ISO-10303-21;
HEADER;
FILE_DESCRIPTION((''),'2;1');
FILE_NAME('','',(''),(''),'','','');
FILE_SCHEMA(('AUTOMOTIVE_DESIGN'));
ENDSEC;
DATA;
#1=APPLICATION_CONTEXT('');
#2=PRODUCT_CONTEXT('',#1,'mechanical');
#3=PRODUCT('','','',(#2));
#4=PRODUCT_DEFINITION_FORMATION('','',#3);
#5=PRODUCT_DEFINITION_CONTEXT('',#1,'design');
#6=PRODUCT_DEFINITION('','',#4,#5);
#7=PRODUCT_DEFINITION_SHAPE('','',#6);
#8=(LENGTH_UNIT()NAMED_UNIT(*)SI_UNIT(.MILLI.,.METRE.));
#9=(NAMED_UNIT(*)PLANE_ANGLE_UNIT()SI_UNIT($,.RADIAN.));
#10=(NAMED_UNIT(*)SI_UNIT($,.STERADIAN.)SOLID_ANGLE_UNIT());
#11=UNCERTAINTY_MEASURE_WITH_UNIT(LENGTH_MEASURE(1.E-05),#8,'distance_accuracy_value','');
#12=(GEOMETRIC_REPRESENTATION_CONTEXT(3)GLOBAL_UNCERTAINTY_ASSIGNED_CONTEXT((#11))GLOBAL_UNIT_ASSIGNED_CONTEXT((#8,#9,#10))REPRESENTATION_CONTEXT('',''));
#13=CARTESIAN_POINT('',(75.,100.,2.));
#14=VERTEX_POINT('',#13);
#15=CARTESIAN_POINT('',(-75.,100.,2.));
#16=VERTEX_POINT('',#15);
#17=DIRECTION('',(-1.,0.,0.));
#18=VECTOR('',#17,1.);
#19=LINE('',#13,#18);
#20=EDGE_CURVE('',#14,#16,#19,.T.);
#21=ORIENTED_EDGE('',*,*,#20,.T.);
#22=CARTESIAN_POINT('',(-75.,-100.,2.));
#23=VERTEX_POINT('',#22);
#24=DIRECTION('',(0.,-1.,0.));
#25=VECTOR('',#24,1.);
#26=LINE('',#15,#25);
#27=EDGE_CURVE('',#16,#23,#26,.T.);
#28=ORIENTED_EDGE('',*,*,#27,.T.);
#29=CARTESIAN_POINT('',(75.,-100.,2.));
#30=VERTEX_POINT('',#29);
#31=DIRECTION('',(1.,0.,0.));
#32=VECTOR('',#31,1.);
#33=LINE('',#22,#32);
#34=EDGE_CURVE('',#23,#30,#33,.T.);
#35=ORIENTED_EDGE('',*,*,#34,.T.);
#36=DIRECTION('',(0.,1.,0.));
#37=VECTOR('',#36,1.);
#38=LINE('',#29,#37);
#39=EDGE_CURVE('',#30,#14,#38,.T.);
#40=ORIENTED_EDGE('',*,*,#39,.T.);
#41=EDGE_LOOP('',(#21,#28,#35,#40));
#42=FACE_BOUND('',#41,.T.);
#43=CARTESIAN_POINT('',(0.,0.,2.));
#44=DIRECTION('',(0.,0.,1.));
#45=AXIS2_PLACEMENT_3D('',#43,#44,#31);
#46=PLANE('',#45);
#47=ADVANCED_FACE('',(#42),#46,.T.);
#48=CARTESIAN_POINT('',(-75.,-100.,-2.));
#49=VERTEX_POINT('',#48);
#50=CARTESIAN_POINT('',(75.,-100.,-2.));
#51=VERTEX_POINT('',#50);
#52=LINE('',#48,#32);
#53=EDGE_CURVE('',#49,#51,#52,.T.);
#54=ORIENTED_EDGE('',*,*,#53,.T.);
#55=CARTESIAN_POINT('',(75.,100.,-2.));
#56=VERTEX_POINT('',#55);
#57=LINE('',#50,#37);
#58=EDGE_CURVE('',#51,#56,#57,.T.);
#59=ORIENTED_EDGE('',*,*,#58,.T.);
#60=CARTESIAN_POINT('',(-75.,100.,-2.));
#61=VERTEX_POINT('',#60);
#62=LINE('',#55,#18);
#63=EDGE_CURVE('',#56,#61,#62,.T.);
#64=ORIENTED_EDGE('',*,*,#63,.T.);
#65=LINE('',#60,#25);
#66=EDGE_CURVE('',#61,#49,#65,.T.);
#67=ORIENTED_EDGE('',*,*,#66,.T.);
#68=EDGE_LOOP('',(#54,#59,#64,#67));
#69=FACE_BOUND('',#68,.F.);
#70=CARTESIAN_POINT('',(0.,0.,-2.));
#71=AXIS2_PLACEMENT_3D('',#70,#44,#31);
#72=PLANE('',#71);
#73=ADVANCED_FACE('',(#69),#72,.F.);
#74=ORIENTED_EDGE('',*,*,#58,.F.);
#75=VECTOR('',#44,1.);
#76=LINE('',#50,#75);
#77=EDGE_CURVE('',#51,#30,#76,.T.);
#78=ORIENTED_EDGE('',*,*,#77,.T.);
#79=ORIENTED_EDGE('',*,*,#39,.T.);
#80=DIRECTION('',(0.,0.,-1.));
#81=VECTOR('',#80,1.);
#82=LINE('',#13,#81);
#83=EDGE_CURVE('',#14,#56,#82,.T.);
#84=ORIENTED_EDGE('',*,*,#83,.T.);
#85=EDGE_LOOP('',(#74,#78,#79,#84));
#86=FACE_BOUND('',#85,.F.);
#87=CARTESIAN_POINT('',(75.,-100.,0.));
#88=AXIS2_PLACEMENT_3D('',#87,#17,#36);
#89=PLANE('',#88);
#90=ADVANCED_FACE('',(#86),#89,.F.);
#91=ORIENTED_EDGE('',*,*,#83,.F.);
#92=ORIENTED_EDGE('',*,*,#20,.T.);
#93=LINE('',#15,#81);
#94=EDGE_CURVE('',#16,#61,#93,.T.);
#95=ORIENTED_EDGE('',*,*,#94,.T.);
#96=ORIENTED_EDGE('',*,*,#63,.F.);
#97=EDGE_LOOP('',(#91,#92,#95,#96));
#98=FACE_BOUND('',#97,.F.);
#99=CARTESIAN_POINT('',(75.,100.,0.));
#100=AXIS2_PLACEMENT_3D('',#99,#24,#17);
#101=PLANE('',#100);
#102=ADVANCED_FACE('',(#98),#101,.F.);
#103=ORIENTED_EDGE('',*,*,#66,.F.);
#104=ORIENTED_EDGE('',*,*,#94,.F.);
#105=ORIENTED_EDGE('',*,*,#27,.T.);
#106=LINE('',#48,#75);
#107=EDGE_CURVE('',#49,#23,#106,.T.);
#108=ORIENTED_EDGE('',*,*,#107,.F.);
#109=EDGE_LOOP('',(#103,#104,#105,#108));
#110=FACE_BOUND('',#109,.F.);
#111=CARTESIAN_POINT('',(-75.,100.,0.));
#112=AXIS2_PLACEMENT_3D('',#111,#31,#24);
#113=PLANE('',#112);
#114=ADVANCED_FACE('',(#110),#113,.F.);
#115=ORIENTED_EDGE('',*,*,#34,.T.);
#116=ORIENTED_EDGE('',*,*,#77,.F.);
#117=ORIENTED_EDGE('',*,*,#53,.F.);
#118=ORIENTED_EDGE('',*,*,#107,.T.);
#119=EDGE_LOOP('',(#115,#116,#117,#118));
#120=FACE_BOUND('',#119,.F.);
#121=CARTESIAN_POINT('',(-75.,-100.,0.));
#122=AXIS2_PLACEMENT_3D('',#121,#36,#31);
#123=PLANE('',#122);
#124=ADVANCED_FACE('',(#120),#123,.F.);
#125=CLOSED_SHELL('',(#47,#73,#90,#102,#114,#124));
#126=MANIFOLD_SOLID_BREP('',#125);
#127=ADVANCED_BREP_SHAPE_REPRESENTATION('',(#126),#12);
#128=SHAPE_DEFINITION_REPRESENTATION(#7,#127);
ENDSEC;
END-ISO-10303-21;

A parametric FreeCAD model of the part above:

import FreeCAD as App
import Part
import Sketcher

V = App.Vector
Q = App.Units.Quantity

doc = App.newDocument("Part")
body = doc.addObject("PartDesign::Body", "Body")

sketch1 = body.newObject("Sketcher::SketchObject", "Sketch")
sketch1.AttachmentSupport = (doc.getObject("XY_Plane"), [""])
sketch1.MapMode = "FlatFace"
sketch1.addGeometry([
    Part.LineSegment(V(-75, 100, 0), V(-75, -100, 0)),
    Part.LineSegment(V(-75, -100, 0), V(75, -100, 0)),
    Part.LineSegment(V(75, -100, 0), V(75, 100, 0)),
    Part.LineSegment(V(75, 100, 0), V(-75, 100, 0)),
], False)
sketch1.addConstraint([
    Sketcher.Constraint("Coincident", 0, 2, 1, 1),
    Sketcher.Constraint("Coincident", 1, 2, 2, 1),
    Sketcher.Constraint("Coincident", 2, 2, 3, 1),
    Sketcher.Constraint("Coincident", 3, 2, 0, 1),
    Sketcher.Constraint("Vertical", 0),
    Sketcher.Constraint("Horizontal", 1),
    Sketcher.Constraint("Vertical", 2),
    Sketcher.Constraint("Horizontal", 3),
    Sketcher.Constraint("Symmetric", 0, 2, 2, 2, -1, 1),
    Sketcher.Constraint("DistanceX", 1, 1, 1, 2, Q("150 mm")),
    Sketcher.Constraint("DistanceY", 0, 2, 0, 1, Q("200 mm")),
])
pad1 = body.newObject("PartDesign::Pad", "Pad")
pad1.Profile = sketch1
pad1.Length = 4
pad1.Midplane = True

doc.recompute()
